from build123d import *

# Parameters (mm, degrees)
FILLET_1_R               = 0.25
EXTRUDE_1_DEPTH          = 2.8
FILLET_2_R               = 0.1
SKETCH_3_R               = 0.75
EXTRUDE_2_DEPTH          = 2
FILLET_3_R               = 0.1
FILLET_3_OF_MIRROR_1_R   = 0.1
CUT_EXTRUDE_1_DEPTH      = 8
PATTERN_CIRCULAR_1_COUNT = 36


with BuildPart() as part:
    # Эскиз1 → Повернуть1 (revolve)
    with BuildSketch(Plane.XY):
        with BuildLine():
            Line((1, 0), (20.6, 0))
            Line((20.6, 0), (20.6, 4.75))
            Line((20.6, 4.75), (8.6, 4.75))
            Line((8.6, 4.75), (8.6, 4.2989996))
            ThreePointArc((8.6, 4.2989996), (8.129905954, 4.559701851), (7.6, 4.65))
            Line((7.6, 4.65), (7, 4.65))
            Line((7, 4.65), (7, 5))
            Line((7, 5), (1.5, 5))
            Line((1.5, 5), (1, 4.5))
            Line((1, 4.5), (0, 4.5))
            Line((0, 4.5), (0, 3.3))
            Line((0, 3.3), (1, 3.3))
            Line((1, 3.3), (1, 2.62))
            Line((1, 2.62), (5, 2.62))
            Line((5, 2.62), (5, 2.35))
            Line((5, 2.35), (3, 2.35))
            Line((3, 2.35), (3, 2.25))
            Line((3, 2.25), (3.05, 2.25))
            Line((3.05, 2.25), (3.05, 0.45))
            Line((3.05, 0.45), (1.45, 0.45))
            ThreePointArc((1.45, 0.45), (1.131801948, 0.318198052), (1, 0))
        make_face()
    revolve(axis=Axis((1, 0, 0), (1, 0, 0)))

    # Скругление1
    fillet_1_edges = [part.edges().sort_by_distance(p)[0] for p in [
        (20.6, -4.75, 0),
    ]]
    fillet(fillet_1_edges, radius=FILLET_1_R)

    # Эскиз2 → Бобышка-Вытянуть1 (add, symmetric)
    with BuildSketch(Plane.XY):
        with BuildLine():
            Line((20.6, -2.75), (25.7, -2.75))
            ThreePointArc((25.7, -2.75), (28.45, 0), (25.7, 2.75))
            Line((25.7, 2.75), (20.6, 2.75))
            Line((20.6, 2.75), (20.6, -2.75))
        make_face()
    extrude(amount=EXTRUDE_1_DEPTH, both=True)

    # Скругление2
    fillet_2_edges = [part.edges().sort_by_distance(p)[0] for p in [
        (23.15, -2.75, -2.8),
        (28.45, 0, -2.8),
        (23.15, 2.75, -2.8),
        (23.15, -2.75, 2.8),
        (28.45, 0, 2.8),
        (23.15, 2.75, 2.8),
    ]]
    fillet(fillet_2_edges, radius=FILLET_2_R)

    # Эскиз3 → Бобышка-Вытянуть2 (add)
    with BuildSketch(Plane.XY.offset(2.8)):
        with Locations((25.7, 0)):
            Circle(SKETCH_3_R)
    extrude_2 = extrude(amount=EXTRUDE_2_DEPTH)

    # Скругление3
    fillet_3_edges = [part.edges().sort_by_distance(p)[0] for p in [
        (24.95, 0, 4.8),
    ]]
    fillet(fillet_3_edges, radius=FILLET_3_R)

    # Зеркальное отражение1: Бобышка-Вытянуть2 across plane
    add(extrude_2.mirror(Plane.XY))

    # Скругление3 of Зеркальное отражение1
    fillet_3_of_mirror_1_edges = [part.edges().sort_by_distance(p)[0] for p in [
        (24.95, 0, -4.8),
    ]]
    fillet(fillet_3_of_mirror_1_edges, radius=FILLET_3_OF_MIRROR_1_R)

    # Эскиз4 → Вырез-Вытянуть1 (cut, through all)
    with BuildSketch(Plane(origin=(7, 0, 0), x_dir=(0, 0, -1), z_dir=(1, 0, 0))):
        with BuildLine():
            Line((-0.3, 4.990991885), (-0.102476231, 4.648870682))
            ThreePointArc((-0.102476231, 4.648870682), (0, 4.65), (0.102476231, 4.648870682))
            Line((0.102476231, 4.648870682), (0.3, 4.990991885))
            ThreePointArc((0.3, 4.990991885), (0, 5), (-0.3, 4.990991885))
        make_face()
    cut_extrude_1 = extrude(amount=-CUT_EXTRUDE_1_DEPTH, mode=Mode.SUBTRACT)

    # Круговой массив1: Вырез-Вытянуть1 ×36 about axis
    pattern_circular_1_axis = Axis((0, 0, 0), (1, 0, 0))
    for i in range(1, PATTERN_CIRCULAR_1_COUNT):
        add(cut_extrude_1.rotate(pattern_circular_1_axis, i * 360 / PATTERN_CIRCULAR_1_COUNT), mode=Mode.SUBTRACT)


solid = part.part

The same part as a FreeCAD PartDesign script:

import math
import FreeCAD as App
import Part
import Sketcher
Q = App.Units.Quantity


def edges_at(feature, points):
    """Names of the edges that pass closest to the given points."""
    edges = feature.Shape.Edges
    near = lambda p: min(range(len(edges)), key=lambda i: edges[i].distToShape(Part.Vertex(*p))[0])
    return sorted({f"Edge{near(p) + 1}" for p in points})

doc = App.newDocument("Part")
body = doc.addObject("PartDesign::Body", "Body")

# Sketch on XY plane
sketch1 = body.newObject("Sketcher::SketchObject", "Sketch")
sketch1.AttachmentSupport = (doc.getObject("XY_Plane"), [""])
sketch1.MapMode = "FlatFace"
sketch1.addGeometry([
    Part.LineSegment(App.Vector(1, 0, 0), App.Vector(20.6, 0, 0)),  # 0
    Part.LineSegment(App.Vector(20.6, 0, 0), App.Vector(20.6, 4.75, 0)),  # 1
    Part.LineSegment(App.Vector(20.6, 4.75, 0), App.Vector(8.6, 4.75, 0)),  # 2
    Part.LineSegment(App.Vector(8.6, 4.75, 0), App.Vector(8.6, 4.299, 0)),  # 3
    Part.ArcOfCircle(Part.Circle(App.Vector(7.6, 3.05, 0), App.Vector(0, 0, 1), 1.6), math.radians(51), math.radians(90)),  # 4
    Part.LineSegment(App.Vector(7.6, 4.65, 0), App.Vector(7, 4.65, 0)),  # 5
    Part.LineSegment(App.Vector(7, 4.65, 0), App.Vector(7, 5, 0)),  # 6
    Part.LineSegment(App.Vector(7, 5, 0), App.Vector(1.5, 5, 0)),  # 7
    Part.LineSegment(App.Vector(1.5, 5, 0), App.Vector(1, 4.5, 0)),  # 8
    Part.LineSegment(App.Vector(1, 4.5, 0), App.Vector(0, 4.5, 0)),  # 9
    Part.LineSegment(App.Vector(0, 4.5, 0), App.Vector(0, 3.3, 0)),  # 10
    Part.LineSegment(App.Vector(0, 3.3, 0), App.Vector(1, 3.3, 0)),  # 11
    Part.LineSegment(App.Vector(1, 3.3, 0), App.Vector(1, 2.62, 0)),  # 12
    Part.LineSegment(App.Vector(1, 2.62, 0), App.Vector(5, 2.62, 0)),  # 13
    Part.LineSegment(App.Vector(5, 2.62, 0), App.Vector(5, 2.35, 0)),  # 14
    Part.LineSegment(App.Vector(5, 2.35, 0), App.Vector(3, 2.35, 0)),  # 15
    Part.LineSegment(App.Vector(3, 2.35, 0), App.Vector(3, 2.25, 0)),  # 16
    Part.LineSegment(App.Vector(3, 2.25, 0), App.Vector(3.05, 2.25, 0)),  # 17
    Part.LineSegment(App.Vector(3.05, 2.25, 0), App.Vector(3.05, 0.45, 0)),  # 18
    Part.LineSegment(App.Vector(3.05, 0.45, 0), App.Vector(1.45, 0.45, 0)),  # 19
    Part.ArcOfCircle(Part.Circle(App.Vector(1.45, 0, 0), App.Vector(0, 0, 1), 0.45), math.radians(90), math.radians(180)),  # 20
], False)
sketch1.addConstraint([
    Sketcher.Constraint("Coincident", 0, 2, 1, 1),
    Sketcher.Constraint("Coincident", 1, 2, 2, 1),
    Sketcher.Constraint("Coincident", 2, 2, 3, 1),
    Sketcher.Constraint("Coincident", 3, 2, 4, 1),
    Sketcher.Constraint("Tangent", 4, 2, 5, 1),
    Sketcher.Constraint("Coincident", 5, 2, 6, 1),
    Sketcher.Constraint("Coincident", 6, 2, 7, 1),
    Sketcher.Constraint("Coincident", 7, 2, 8, 1),
    Sketcher.Constraint("Coincident", 8, 2, 9, 1),
    Sketcher.Constraint("Coincident", 9, 2, 10, 1),
    Sketcher.Constraint("Coincident", 10, 2, 11, 1),
    Sketcher.Constraint("Coincident", 11, 2, 12, 1),
    Sketcher.Constraint("Coincident", 12, 2, 13, 1),
    Sketcher.Constraint("Coincident", 13, 2, 14, 1),
    Sketcher.Constraint("Coincident", 14, 2, 15, 1),
    Sketcher.Constraint("Coincident", 15, 2, 16, 1),
    Sketcher.Constraint("Coincident", 16, 2, 17, 1),
    Sketcher.Constraint("Coincident", 17, 2, 18, 1),
    Sketcher.Constraint("Coincident", 18, 2, 19, 1),
    Sketcher.Constraint("Tangent", 19, 2, 20, 1),
    Sketcher.Constraint("Coincident", 20, 2, 0, 1),
    Sketcher.Constraint("Horizontal", 0),
    Sketcher.Constraint("Vertical", 1),
    Sketcher.Constraint("Horizontal", 2),
    Sketcher.Constraint("Vertical", 3),
    Sketcher.Constraint("Horizontal", 5),
    Sketcher.Constraint("Vertical", 6),
    Sketcher.Constraint("Horizontal", 7),
    Sketcher.Constraint("Horizontal", 9),
    Sketcher.Constraint("Vertical", 10),
    Sketcher.Constraint("Horizontal", 11),
    Sketcher.Constraint("Vertical", 12),
    Sketcher.Constraint("Horizontal", 13),
    Sketcher.Constraint("Vertical", 14),
    Sketcher.Constraint("Horizontal", 15),
    Sketcher.Constraint("Vertical", 16),
    Sketcher.Constraint("Horizontal", 17),
    Sketcher.Constraint("Vertical", 18),
    Sketcher.Constraint("Horizontal", 19),
    Sketcher.Constraint("PointOnObject", 20, 3, -1),
    Sketcher.Constraint("PointOnObject", 0, 2, -1),
    Sketcher.Constraint("PointOnObject", 9, 2, -2),
    Sketcher.Constraint("Vertical", 8, 2, 11, 2),
    Sketcher.Constraint("Vertical", 12, 2, 20, 2),
    Sketcher.Constraint("Radius", 4, 1.6),
    Sketcher.Constraint("DistanceX", 2, 2, 2, 1, 12.0),
    Sketcher.Constraint("DistanceX", 9, 2, 9, 1, 1.0),
    Sketcher.Constraint("DistanceX", 13, 1, 13, 2, 4.0),
    Sketcher.Constraint("DistanceX", 15, 2, 15, 1, 2.0),
    Sketcher.Constraint("Angle", 8, Q("-135 deg")),
    Sketcher.Constraint("Radius", 20, 0.45),
    Sketcher.Constraint("DistanceX", 0, 1, 0, 2, 19.6),
    Sketcher.Constraint("DistanceX", 5, 2, 5, 1, 0.6),
    Sketcher.Constraint("DistanceX", 7, 2, 7, 1, 5.5),
    Sketcher.Constraint("DistanceX", 19, 2, 19, 1, 1.6),
    Sketcher.Constraint("DistanceY", 10, 2, 10, 1, 1.2),
    Sketcher.Constraint("DistanceY", 16, 2, 16, 1, 0.1),
    Sketcher.Constraint("DistanceY", 18, 2, 18, 1, 1.8),
    Sketcher.Constraint("DistanceX", -1, 1, 5, 2, 7.0),
    Sketcher.Constraint("DistanceY", -1, 1, 6, 2, 5.0),
    Sketcher.Constraint("DistanceY", 1, 1, 1, 2, 4.75),
    Sketcher.Constraint("DistanceY", 6, 1, 6, 2, 0.35),
    Sketcher.Constraint("DistanceY", 12, 2, 12, 1, 0.68),
])
revolution = body.newObject("PartDesign::Revolution", "Revolution")
revolution.Profile = sketch1
revolution.ReferenceAxis = (sketch1, ["H_Axis"])
revolution.Angle = 360
doc.recompute()

fillet = body.newObject("PartDesign::Fillet", "Fillet")
fillet.Base = (revolution, edges_at(revolution, [(20.6, -4.75, 0)]))
fillet.Radius = 0.25

# Sketch on XY plane
sketch2 = body.newObject("Sketcher::SketchObject", "Sketch001")
sketch2.AttachmentSupport = (doc.getObject("XY_Plane"), [""])
sketch2.MapMode = "FlatFace"
sketch2.addGeometry([
    Part.LineSegment(App.Vector(20.6, -2.8, 0), App.Vector(25.7, -2.8, 0)),
    Part.ArcOfCircle(Part.Circle(App.Vector(25.7, 0, 0), App.Vector(0, 0, 1), 2.8), math.radians(-90), math.radians(90)),
    Part.LineSegment(App.Vector(25.7, 2.8, 0), App.Vector(20.6, 2.8, 0)),
    Part.LineSegment(App.Vector(20.6, 2.8, 0), App.Vector(20.6, -2.8, 0)),
], False)
sketch2.addConstraint([
    Sketcher.Constraint("Tangent", 0, 2, 1, 1),
    Sketcher.Constraint("Tangent", 1, 2, 2, 1),
    Sketcher.Constraint("Coincident", 2, 2, 3, 1),
    Sketcher.Constraint("Coincident", 3, 2, 0, 1),
    Sketcher.Constraint("Horizontal", 0),
    Sketcher.Constraint("Horizontal", 2),
    Sketcher.Constraint("Vertical", 3),
    Sketcher.Constraint("PointOnObject", 1, 3, -1),
    Sketcher.Constraint("Radius", 1, 2.75),
    Sketcher.Constraint("DistanceX", 0, 1, 0, 2, 5.1),
    Sketcher.Constraint("DistanceX", -1, 1, 1, 3, 25.7),
])
pad1 = body.newObject("PartDesign::Pad", "Pad")
pad1.Profile = sketch2
pad1.Length = 5.6
pad1.Midplane = True
doc.recompute()

fillet2 = body.newObject("PartDesign::Fillet", "Fillet001")
fillet2.Base = (pad1, edges_at(pad1, [
    (23.15, -2.75, -2.8),
    (28.45, 0, -2.8),
    (23.15, 2.75, -2.8),
    (23.15, -2.75, 2.8),
    (28.45, 0, 2.8),
    (23.15, 2.75, 2.8),
]))
fillet2.Radius = 0.1

# Sketch on XY plane
sketch3 = body.newObject("Sketcher::SketchObject", "Sketch002")
sketch3.AttachmentSupport = (doc.getObject("XY_Plane"), [""])
sketch3.MapMode = "FlatFace"
sketch3.AttachmentOffset = App.Placement(App.Vector(0, 0, 2.8), App.Rotation())
sketch3.addGeometry(Part.Circle(App.Vector(25.7, 0, 0), App.Vector(0, 0, 1), 0.8), False)
sketch3.addConstraint([
    Sketcher.Constraint("PointOnObject", 0, 3, -1),
    Sketcher.Constraint("Diameter", 0, 1.5),
    Sketcher.Constraint("DistanceX", -1, 1, 0, 3, 25.7),
])
pad2 = body.newObject("PartDesign::Pad", "Pad001")
pad2.Profile = sketch3
pad2.Length = 2
doc.recompute()

fillet3 = body.newObject("PartDesign::Fillet", "Fillet002")
fillet3.Base = (pad2, edges_at(pad2, [(24.95, 0, 4.8)]))
fillet3.Radius = 0.1
doc.recompute()

mirrored = body.newObject("PartDesign::Mirrored", "Mirrored")
mirrored.Originals = [pad2]
mirrored.MirrorPlane = (doc.getObject("XY_Plane"), [""])
body.Tip = mirrored
doc.recompute()

fillet4 = body.newObject("PartDesign::Fillet", "Fillet003")
fillet4.Base = (mirrored, edges_at(mirrored, [(24.95, 0, -4.8)]))
fillet4.Radius = 0.1

# Sketch on YZ plane
sketch4 = body.newObject("Sketcher::SketchObject", "Sketch003")
sketch4.AttachmentSupport = (doc.getObject("YZ_Plane"), [""])
sketch4.MapMode = "FlatFace"
sketch4.AttachmentOffset = App.Placement(App.Vector(0, 0, 7), App.Rotation())
sketch4.addGeometry([
    Part.LineSegment(App.Vector(4.99, 0.3, 0), App.Vector(4.65, 0.1, 0)),
    Part.ArcOfCircle(Part.Circle(App.Vector(0, 0, 0), App.Vector(0, 0, 1), 4.65), math.radians(-1.26), math.radians(1.26)),
    Part.LineSegment(App.Vector(4.65, -0.1, 0), App.Vector(4.99, -0.3, 0)),
    Part.ArcOfCircle(Part.Circle(App.Vector(0, 0, 0), App.Vector(0, 0, 1), 5), math.radians(-3.44), math.radians(3.44)),
], False)
sketch4.addConstraint([
    Sketcher.Constraint("Coincident", 0, 2, 1, 2),
    Sketcher.Constraint("Coincident", 1, 1, 2, 1),
    Sketcher.Constraint("Coincident", 2, 2, 3, 1),
    Sketcher.Constraint("Coincident", 3, 2, 0, 1),
    Sketcher.Constraint("Coincident", 1, 3, -1, 1),
    Sketcher.Constraint("Coincident", 3, 3, -1, 1),
    Sketcher.Constraint("Vertical", 0, 2, 1, 1),
    Sketcher.Constraint("Vertical", 2, 2, 3, 2),
    Sketcher.Constraint("Radius", 3, 5.0),
    Sketcher.Constraint("Angle", 0, Q("-150 deg")),
    Sketcher.Constraint("Radius", 1, 4.649998),
    Sketcher.Constraint("DistanceY", 2, 2, -1, 1, 0.3),
])
pocket1 = body.newObject("PartDesign::Pocket", "Pocket")
pocket1.Profile = sketch4
pocket1.Type = "ThroughAll"
doc.recompute()

polarpattern = body.newObject("PartDesign::PolarPattern", "PolarPattern")
polarpattern.Originals = [pocket1]
polarpattern.Axis = (doc.getObject("X_Axis"), [""])
polarpattern.Angle = 360
polarpattern.Occurrences = 36
body.Tip = polarpattern

doc.recompute()
